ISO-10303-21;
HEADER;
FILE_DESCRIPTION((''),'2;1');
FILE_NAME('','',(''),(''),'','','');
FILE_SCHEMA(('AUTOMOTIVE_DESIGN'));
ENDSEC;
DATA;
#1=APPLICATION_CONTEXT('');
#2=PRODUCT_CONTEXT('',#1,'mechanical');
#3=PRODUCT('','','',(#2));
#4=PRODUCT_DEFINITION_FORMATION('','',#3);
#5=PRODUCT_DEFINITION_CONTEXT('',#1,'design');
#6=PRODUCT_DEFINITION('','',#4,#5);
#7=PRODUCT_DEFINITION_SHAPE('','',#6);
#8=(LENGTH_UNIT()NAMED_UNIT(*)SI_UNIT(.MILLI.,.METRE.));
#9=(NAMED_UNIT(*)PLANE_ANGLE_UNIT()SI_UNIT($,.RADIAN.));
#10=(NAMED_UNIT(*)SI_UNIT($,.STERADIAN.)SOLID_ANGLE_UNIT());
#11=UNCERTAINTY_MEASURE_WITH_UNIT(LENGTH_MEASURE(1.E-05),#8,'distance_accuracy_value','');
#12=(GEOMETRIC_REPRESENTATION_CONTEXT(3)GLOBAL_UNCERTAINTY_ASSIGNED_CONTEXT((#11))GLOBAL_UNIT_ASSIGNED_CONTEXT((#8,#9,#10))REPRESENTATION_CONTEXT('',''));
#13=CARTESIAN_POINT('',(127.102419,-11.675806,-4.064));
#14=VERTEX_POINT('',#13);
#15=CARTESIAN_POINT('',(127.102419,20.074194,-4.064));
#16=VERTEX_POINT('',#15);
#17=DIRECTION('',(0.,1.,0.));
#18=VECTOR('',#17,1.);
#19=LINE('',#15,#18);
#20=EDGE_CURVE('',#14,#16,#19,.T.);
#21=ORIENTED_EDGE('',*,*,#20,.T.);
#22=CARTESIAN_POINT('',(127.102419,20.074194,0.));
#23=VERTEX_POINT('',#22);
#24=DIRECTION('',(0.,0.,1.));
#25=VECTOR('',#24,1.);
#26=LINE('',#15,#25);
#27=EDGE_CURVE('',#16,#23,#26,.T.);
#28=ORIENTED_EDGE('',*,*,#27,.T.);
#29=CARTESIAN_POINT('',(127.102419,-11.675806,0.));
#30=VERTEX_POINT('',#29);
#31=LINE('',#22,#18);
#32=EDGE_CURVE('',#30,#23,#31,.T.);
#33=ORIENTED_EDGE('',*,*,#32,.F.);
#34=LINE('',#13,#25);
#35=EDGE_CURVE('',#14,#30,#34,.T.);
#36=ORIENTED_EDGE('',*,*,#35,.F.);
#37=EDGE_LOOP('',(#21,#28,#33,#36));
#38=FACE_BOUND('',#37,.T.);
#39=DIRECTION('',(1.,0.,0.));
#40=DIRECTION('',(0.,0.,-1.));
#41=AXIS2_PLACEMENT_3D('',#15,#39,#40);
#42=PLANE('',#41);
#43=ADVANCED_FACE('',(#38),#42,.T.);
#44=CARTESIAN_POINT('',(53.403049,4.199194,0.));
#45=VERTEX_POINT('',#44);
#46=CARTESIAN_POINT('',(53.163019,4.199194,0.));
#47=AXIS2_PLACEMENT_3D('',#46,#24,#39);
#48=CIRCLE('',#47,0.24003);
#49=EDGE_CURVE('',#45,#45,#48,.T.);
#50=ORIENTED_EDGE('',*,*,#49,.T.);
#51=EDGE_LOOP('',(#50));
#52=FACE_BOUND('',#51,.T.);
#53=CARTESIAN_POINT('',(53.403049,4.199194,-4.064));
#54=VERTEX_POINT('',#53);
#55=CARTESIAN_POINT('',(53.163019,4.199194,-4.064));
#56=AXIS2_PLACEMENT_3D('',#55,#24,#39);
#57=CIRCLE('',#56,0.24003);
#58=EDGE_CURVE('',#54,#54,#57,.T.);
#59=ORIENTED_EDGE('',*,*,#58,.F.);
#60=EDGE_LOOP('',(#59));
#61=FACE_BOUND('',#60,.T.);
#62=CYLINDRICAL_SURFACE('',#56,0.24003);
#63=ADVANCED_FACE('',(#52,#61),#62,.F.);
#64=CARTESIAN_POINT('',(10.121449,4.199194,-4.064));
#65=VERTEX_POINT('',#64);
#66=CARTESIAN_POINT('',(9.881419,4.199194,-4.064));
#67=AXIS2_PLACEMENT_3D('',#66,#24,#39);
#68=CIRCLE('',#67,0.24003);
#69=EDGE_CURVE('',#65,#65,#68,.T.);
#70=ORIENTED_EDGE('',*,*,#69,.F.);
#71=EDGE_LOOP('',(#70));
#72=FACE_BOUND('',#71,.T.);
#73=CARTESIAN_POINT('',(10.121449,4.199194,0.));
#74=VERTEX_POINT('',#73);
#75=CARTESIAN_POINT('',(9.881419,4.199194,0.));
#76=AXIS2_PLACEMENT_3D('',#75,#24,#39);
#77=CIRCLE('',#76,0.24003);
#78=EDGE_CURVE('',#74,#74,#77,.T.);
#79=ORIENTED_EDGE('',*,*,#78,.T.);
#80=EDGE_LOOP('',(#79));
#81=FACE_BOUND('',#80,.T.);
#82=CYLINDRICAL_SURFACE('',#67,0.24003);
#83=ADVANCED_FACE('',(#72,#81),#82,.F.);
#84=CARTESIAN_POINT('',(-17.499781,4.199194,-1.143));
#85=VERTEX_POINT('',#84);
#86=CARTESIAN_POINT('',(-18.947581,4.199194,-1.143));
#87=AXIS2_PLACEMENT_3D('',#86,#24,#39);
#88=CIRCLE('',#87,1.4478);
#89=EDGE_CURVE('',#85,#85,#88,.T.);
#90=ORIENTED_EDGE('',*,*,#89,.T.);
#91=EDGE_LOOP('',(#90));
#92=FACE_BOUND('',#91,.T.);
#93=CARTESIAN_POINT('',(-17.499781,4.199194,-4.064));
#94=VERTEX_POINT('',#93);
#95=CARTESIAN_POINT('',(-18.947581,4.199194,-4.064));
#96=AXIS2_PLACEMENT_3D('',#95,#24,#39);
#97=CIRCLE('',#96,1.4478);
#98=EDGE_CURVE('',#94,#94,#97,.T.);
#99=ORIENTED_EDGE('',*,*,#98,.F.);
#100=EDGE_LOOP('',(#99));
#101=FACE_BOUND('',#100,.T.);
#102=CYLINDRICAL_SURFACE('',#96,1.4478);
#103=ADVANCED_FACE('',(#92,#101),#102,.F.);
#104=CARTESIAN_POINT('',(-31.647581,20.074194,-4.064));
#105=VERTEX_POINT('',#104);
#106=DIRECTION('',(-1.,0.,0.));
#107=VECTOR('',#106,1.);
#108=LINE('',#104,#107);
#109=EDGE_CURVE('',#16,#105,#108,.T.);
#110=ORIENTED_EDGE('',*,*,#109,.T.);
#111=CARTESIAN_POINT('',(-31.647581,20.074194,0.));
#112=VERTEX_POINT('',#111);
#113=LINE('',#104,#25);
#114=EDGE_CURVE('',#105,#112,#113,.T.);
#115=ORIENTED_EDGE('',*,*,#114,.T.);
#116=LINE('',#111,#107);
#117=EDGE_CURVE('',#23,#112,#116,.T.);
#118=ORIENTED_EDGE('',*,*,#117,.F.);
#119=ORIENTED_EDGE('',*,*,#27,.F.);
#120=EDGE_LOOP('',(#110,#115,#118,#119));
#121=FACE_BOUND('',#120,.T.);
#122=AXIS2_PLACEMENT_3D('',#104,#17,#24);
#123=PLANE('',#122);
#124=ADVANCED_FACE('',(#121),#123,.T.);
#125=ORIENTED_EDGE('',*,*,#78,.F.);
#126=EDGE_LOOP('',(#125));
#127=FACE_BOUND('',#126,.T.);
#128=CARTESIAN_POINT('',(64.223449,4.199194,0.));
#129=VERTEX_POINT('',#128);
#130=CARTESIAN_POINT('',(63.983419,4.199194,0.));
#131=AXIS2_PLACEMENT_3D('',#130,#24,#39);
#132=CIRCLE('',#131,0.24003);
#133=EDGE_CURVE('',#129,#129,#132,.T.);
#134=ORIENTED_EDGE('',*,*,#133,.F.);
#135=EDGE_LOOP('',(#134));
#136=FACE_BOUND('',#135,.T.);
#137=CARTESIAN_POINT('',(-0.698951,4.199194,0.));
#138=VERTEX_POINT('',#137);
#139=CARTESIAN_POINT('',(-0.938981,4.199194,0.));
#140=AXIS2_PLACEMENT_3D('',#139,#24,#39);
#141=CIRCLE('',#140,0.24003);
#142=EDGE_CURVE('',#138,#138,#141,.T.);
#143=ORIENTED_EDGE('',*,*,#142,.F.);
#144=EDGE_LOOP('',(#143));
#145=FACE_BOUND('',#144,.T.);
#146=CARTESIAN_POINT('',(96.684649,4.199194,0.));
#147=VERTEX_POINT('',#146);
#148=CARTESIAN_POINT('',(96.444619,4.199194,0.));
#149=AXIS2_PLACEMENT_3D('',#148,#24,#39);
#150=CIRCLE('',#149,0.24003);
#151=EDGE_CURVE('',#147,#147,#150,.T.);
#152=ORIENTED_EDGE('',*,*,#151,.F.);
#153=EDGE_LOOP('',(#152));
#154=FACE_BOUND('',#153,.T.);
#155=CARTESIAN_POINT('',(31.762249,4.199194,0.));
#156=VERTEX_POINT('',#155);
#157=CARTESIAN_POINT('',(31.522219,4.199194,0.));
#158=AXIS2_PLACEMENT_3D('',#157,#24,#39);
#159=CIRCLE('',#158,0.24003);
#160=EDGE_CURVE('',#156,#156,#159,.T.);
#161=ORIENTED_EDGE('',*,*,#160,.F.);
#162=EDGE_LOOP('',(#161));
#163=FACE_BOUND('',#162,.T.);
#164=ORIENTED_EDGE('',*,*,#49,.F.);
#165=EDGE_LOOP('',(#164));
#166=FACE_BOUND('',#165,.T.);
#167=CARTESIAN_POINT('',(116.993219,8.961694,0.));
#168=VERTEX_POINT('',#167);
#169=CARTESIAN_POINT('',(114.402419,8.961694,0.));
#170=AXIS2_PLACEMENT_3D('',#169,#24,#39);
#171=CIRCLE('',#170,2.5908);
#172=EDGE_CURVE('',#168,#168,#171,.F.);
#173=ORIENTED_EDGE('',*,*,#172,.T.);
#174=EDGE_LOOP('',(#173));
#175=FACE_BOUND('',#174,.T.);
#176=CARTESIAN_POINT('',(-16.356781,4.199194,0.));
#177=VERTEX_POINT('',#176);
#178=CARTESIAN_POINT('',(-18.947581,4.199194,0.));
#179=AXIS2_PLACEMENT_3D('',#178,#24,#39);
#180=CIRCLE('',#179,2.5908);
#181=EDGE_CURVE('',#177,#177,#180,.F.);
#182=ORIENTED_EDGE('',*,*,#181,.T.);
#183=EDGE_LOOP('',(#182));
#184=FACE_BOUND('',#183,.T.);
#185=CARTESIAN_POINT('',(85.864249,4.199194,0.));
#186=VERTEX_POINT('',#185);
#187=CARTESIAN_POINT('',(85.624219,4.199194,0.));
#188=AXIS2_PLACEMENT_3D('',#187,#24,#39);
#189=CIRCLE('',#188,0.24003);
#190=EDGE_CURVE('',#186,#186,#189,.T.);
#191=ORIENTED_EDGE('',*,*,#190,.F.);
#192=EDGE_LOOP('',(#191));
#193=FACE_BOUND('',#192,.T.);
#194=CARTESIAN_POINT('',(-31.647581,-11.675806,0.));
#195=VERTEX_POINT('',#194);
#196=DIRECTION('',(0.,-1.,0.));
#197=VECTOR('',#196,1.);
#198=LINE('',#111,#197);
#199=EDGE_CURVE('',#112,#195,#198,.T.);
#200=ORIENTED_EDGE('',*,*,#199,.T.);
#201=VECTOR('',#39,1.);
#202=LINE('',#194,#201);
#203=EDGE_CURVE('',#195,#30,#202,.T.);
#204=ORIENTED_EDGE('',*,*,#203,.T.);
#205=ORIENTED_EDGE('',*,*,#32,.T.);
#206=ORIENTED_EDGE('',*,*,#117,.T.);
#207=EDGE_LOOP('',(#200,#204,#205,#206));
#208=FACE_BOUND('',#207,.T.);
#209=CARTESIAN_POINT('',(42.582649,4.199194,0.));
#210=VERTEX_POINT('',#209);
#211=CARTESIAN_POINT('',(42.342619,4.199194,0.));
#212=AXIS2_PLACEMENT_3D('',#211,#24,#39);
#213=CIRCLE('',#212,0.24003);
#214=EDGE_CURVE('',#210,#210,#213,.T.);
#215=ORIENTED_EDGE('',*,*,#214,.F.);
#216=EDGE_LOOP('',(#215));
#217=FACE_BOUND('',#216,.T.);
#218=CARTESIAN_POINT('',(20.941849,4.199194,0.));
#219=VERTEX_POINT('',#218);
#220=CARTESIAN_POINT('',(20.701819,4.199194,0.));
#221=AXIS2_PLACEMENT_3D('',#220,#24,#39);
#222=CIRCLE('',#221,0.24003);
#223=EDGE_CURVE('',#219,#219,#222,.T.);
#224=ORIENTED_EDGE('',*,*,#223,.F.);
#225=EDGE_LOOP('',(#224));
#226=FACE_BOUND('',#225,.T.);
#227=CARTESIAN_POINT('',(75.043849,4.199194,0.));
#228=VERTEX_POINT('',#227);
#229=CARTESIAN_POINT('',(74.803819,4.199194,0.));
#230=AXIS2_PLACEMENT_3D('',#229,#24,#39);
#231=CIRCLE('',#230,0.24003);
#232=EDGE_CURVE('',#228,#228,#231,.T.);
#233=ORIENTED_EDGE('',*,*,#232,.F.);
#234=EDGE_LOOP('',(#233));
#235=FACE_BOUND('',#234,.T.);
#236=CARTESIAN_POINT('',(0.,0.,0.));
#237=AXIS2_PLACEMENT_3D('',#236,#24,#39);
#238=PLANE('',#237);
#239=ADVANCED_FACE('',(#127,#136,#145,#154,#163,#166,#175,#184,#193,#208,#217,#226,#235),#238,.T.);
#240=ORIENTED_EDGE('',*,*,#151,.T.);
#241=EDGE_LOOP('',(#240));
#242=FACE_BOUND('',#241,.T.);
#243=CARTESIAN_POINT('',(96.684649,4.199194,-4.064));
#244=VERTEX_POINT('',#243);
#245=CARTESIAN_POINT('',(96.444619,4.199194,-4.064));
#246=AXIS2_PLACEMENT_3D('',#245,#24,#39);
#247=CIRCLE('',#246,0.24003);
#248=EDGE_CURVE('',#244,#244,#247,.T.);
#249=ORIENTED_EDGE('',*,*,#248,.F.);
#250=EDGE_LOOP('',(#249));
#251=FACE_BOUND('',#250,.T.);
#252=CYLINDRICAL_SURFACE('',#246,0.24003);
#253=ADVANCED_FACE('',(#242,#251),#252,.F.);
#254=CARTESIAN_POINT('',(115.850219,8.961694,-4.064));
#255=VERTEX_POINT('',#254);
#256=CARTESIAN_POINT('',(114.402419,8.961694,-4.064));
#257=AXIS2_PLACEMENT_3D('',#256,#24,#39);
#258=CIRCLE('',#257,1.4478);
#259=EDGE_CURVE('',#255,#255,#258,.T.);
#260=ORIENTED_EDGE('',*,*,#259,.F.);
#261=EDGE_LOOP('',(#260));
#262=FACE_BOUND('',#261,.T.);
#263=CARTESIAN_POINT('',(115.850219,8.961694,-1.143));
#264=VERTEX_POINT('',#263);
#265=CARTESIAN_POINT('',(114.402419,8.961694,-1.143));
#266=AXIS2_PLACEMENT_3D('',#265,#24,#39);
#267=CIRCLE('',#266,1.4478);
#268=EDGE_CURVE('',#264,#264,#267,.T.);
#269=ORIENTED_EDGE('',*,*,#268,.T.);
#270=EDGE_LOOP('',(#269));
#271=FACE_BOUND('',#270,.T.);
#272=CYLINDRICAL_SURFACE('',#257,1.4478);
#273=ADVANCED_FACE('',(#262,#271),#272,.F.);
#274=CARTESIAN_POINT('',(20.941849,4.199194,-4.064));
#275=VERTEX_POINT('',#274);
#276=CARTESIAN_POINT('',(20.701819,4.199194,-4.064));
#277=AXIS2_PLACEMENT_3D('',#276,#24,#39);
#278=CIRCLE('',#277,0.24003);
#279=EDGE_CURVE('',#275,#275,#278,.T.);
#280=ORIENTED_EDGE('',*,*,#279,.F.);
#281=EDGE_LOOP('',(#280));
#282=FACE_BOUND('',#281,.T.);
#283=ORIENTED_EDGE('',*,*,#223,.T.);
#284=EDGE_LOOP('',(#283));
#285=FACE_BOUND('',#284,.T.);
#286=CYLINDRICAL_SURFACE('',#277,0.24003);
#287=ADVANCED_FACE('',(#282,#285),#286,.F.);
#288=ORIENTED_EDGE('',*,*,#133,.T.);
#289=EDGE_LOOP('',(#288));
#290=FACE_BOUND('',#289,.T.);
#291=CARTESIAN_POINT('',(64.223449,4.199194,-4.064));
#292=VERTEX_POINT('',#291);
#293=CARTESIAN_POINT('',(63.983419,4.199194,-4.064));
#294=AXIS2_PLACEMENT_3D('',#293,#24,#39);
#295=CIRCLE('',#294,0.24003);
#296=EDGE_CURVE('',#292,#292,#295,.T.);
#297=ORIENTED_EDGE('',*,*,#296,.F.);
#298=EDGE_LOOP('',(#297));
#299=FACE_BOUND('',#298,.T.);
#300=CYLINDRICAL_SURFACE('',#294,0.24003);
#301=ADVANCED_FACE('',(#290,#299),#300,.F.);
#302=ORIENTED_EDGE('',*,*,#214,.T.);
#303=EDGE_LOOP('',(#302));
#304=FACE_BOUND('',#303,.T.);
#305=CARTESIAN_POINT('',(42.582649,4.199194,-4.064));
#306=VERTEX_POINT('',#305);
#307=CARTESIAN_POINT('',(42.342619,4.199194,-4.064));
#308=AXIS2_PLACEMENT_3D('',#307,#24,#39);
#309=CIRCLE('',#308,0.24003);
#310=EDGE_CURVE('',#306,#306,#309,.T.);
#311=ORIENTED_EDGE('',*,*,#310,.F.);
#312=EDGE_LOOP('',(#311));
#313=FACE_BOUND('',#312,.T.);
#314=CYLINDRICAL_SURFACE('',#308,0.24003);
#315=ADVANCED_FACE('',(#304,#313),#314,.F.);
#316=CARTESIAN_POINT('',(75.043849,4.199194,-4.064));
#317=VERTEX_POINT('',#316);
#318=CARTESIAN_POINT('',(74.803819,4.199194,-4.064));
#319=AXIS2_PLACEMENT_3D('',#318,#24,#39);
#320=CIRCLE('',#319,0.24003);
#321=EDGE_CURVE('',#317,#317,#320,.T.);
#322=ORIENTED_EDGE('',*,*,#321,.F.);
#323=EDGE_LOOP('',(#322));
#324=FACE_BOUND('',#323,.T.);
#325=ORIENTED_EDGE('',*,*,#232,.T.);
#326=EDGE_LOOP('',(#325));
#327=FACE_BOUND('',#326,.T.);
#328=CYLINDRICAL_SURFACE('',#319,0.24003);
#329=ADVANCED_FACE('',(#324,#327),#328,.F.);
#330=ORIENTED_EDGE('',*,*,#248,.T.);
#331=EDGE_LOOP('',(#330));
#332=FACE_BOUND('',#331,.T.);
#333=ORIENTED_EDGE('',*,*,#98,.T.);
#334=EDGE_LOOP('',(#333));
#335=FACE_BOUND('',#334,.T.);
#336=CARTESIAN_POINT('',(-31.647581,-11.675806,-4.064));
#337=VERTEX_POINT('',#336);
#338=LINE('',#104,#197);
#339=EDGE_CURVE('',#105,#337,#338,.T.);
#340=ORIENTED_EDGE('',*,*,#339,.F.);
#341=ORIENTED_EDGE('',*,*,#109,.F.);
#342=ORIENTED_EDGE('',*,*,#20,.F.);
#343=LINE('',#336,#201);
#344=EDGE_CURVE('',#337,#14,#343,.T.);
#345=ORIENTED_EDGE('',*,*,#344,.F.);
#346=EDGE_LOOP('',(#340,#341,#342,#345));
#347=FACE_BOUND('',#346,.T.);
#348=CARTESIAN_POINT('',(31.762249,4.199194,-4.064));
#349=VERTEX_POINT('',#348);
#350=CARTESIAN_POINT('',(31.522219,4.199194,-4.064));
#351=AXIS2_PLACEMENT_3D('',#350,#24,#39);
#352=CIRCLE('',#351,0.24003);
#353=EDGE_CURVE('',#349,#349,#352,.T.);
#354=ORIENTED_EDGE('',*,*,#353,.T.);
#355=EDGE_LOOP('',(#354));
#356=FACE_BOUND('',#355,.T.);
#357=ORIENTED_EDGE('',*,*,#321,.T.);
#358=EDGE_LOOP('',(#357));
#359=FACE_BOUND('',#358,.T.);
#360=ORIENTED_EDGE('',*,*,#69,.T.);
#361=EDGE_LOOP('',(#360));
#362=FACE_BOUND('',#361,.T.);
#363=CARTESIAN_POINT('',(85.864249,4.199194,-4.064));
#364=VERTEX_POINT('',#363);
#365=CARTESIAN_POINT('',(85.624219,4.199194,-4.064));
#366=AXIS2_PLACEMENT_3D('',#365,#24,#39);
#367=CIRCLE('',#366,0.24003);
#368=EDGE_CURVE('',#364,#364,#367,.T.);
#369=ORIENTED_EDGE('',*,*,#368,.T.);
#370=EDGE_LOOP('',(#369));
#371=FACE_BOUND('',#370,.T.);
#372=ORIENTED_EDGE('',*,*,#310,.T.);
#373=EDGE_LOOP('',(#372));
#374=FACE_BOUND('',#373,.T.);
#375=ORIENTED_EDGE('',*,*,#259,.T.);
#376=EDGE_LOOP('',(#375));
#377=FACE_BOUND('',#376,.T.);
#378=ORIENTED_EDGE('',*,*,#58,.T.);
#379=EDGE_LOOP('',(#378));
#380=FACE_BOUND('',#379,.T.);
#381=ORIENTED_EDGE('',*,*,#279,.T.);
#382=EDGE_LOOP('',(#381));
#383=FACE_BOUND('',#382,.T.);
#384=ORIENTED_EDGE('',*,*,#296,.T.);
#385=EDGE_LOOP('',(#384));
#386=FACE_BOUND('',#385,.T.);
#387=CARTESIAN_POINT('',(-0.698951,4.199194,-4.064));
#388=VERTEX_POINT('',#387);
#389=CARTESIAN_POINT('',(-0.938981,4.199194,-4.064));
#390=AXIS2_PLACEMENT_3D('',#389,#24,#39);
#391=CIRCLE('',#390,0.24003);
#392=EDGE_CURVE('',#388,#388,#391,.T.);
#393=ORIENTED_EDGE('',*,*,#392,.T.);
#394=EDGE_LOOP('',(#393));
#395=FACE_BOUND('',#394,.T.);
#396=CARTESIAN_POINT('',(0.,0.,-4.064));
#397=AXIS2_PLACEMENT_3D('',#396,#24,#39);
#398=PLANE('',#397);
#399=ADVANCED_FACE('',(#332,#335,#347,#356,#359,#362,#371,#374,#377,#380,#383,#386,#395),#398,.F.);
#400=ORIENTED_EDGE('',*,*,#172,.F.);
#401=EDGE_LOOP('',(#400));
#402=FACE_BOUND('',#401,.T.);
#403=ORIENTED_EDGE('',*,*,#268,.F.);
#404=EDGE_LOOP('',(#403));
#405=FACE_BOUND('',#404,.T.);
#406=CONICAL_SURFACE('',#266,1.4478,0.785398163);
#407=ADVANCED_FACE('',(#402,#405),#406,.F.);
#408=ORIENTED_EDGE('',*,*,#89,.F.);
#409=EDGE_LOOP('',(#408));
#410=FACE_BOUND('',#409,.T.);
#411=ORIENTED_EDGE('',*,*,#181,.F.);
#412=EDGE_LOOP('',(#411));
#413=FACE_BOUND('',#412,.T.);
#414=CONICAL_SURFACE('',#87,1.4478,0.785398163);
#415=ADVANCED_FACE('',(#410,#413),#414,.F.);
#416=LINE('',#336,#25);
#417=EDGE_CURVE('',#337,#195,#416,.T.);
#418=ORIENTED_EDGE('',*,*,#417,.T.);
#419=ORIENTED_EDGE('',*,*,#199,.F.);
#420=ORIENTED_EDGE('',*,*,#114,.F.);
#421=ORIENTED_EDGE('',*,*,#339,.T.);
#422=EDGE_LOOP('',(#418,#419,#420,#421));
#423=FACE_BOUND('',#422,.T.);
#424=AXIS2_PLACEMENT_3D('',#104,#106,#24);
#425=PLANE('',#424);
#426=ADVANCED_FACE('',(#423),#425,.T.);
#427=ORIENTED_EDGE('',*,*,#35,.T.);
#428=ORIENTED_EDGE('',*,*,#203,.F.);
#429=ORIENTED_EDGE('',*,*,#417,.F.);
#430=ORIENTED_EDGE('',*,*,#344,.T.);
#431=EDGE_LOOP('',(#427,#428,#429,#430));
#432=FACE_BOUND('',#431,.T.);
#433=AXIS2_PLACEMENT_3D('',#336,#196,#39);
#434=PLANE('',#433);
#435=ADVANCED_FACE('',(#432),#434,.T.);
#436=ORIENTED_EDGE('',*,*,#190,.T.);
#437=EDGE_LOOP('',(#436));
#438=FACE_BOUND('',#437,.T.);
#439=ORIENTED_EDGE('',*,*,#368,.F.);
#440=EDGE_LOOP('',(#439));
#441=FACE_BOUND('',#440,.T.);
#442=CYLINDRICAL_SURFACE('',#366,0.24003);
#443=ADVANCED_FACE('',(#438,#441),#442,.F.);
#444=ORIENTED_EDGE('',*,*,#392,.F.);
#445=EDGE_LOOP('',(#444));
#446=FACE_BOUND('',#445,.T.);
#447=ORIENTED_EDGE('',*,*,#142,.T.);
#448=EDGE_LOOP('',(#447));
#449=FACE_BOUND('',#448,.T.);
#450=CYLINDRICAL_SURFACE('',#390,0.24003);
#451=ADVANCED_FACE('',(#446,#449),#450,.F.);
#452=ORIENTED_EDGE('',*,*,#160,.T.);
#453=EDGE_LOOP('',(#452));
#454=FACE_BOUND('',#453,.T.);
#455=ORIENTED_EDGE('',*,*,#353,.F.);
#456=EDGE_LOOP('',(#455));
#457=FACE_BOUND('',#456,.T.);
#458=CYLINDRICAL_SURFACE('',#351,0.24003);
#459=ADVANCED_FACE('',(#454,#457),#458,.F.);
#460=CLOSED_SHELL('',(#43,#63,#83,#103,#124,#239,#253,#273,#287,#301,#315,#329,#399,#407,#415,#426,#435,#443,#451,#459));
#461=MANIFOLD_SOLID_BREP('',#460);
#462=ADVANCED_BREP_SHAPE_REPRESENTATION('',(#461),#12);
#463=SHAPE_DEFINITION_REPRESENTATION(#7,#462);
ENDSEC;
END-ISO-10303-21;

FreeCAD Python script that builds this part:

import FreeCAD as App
import Part
import Sketcher
from FreeCAD import Vector
Q = App.Units.Quantity


def edges_at(feature, points):
    """Names of the edges that pass closest to the given points."""
    edges = feature.Shape.Edges
    near = lambda p: min(range(len(edges)), key=lambda i: edges[i].distToShape(Part.Vertex(*p))[0])
    return sorted({f"Edge{near(p) + 1}" for p in points})

doc = App.newDocument("Part")
body = doc.addObject("PartDesign::Body", "Body")

# Sketch on XY plane
sketch1 = doc.addObject("Sketcher::SketchObject", "Sketch")
body.addObject(sketch1)
sketch1.AttachmentSupport = (doc.XY_Plane, [""])
sketch1.MapMode = "FlatFace"
sketch1.addGeometry([
    Part.LineSegment(Vector(-31.647581, 20.074194, 0), Vector(-31.647581, -11.675806, 0)),
    Part.LineSegment(Vector(-31.647581, -11.675806, 0), Vector(127.102419, -11.675806, 0)),
    Part.LineSegment(Vector(127.102419, -11.675806, 0), Vector(127.102419, 20.074194, 0)),
    Part.LineSegment(Vector(127.102419, 20.074194, 0), Vector(-31.647581, 20.074194, 0)),
], False)
sketch1.addConstraint([
    Sketcher.Constraint("Coincident", 0, 2, 1, 1),
    Sketcher.Constraint("Coincident", 1, 2, 2, 1),
    Sketcher.Constraint("Coincident", 2, 2, 3, 1),
    Sketcher.Constraint("Coincident", 3, 2, 0, 1),
    Sketcher.Constraint("Vertical", 0),
    Sketcher.Constraint("Horizontal", 1),
    Sketcher.Constraint("Vertical", 2),
    Sketcher.Constraint("Horizontal", 3),
    Sketcher.Constraint("DistanceX", 1, 1, 1, 2, Q("6.25 in")),
    Sketcher.Constraint("DistanceY", 0, 2, 0, 1, Q("1.25 in")),
    Sketcher.Constraint("DistanceX", 0, 2, -1, 1, 31.647581),
    Sketcher.Constraint("DistanceY", 0, 2, -1, 1, 11.675806),
])
pad1 = doc.addObject("PartDesign::Pad", "Pad")
body.addObject(pad1)
pad1.Profile = sketch1
pad1.Length = Q("0.16 in")
pad1.Reversed = True

# Sketch on XY plane
sketch2 = doc.addObject("Sketcher::SketchObject", "Sketch001")
body.addObject(sketch2)
sketch2.AttachmentSupport = (doc.XY_Plane, [""])
sketch2.MapMode = "FlatFace"
sketch2.addGeometry([
    Part.Circle(Vector(-18.947581, 4.199194, 0), Vector(0, 0, 1), 1.4478),
    Part.Circle(Vector(114.402419, 8.961694, 0), Vector(0, 0, 1), 1.4478),
], False)
sketch2.addConstraint([
    Sketcher.Constraint("Equal", 0, 1),
    Sketcher.Constraint("Diameter", 0, Q("0.114 in")),
    Sketcher.Constraint("DistanceX", 0, 3, 1, 3, Q("5.25 in")),
    Sketcher.Constraint("DistanceY", 0, 3, 1, 3, Q("0.1875 in")),
    Sketcher.Constraint("DistanceX", 0, 3, -1, 1, 18.947581),
    Sketcher.Constraint("DistanceY", -1, 1, 0, 3, 4.199194),
])
pocket1 = doc.addObject("PartDesign::Pocket", "Pocket")
body.addObject(pocket1)
pocket1.Profile = sketch2
pocket1.Type = "ThroughAll"
doc.recompute()

chamfer = doc.addObject("PartDesign::Chamfer", "Chamfer")
body.addObject(chamfer)
chamfer.Base = (pocket1, edges_at(pocket1, [(-20.395, 4.199, 0), (112.955, 8.962, 0)]))
chamfer.Size = Q("0.045 in")

# Sketch on XY plane
sketch3 = doc.addObject("Sketcher::SketchObject", "Sketch002")
body.addObject(sketch3)
sketch3.AttachmentSupport = (doc.XY_Plane, [""])
sketch3.MapMode = "FlatFace"
sketch3.addGeometry(Part.Circle(Vector(-0.938981, 4.199194, 0), Vector(0, 0, 1), 0.24003), False)
sketch3.addConstraint([
    Sketcher.Constraint("Diameter", 0, Q("0.0189 in")),
    Sketcher.Constraint("DistanceX", 0, 3, -1, 1, 0.938981),
    Sketcher.Constraint("DistanceY", -1, 1, 0, 3, 4.199194),
])
pocket2 = doc.addObject("PartDesign::Pocket", "Pocket001")
body.addObject(pocket2)
pocket2.Profile = sketch3
pocket2.Type = "ThroughAll"
doc.recompute()

linearpattern = doc.addObject("PartDesign::LinearPattern", "LinearPattern")
body.addObject(linearpattern)
linearpattern.Originals = [pocket2]
linearpattern.Direction = (doc.X_Axis, [""])
linearpattern.Mode = "offset"
linearpattern.Offset = Q("0.426 in")
linearpattern.Occurrences = 10
body.Tip = linearpattern

doc.recompute()
